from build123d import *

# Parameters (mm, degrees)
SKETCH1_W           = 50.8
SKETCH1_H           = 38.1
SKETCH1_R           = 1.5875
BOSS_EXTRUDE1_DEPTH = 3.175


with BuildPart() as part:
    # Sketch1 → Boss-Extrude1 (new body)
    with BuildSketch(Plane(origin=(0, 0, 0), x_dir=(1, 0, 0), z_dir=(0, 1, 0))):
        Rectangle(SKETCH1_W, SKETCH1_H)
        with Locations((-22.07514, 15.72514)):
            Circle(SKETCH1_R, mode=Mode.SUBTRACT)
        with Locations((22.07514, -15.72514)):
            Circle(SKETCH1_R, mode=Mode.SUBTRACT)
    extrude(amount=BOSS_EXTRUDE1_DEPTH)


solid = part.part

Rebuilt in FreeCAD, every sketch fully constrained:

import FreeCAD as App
import Part
import Sketcher

V = App.Vector
Q = App.Units.Quantity


def add_polygon(sketch, points):
    """Adds a closed chain of lines whose ends are joined by coincident constraints."""
    first, n = sketch.GeometryCount, len(points)
    for a, b in zip(points, points[1:] + points[:1]):
        sketch.addGeometry(Part.LineSegment(App.Vector(*a, 0), App.Vector(*b, 0)), False)
    for i in range(n):
        sketch.addConstraint(Sketcher.Constraint("Coincident", first + i, 2, first + (i + 1) % n, 1))

doc = App.newDocument("Part")
params = doc.addObject("Spreadsheet::Sheet", "Params")
for row, (alias, value) in enumerate([
    ("sketch1_width", "2 in"),
    ("sketch1_diameter", "0.125 in"),
    ("sketch1_height", "1.5 in"),
    ("pad1_length", "0.125 in"),
], start=1):
    params.set(f"A{row}", alias)
    params.set(f"B{row}", "=" + value)
    params.setAlias(f"B{row}", alias)

body = doc.addObject("PartDesign::Body", "Body")

sketch1 = body.newObject("Sketcher::SketchObject", "Sketch")
sketch1.AttachmentSupport = (doc.getObject("XZ_Plane"), [""])
sketch1.MapMode = "FlatFace"
add_polygon(sketch1, [(-25.4, -19.1), (-25.4, 19.1), (25.4, 19.1), (25.4, -19.1)])
sketch1.addGeometry(Part.Circle(V(22.1, 15.7, 0), V(0, 0, 1), 1.6), False)
sketch1.addGeometry(Part.Circle(V(-22.1, -15.7, 0), V(0, 0, 1), 1.6), False)
sketch1.addConstraint(Sketcher.Constraint("Vertical", 0))
sketch1.addConstraint(Sketcher.Constraint("Horizontal", 1))
sketch1.addConstraint(Sketcher.Constraint("Vertical", 2))
sketch1.addConstraint(Sketcher.Constraint("Horizontal", 3))
sketch1.addConstraint(Sketcher.Constraint("Equal", 4, 5))
sketch1.addConstraint(Sketcher.Constraint("Symmetric", 4, 3, 5, 3, -1, 1))
sketch1.addConstraint(Sketcher.Constraint("Symmetric", 0, 2, 2, 2, -1, 1))
sketch1.addConstraint(Sketcher.Constraint("DistanceX", 1, 1, 1, 2, Q("2 in")))
sketch1.addConstraint(Sketcher.Constraint("Diameter", 4, Q("0.125 in")))
sketch1.addConstraint(Sketcher.Constraint("DistanceY", 0, 1, 0, 2, Q("1.5 in")))
sketch1.addConstraint(Sketcher.Constraint("DistanceX", -1, 1, 4, 3, Q("0.8691 in")))
sketch1.addConstraint(Sketcher.Constraint("DistanceY", -1, 1, 4, 3, Q("0.6191 in")))
sketch1.setExpression("Constraints[11]", "Params.sketch1_width")
sketch1.setExpression("Constraints[12]", "Params.sketch1_diameter")
sketch1.setExpression("Constraints[13]", "Params.sketch1_height")
pad1 = body.newObject("PartDesign::Pad", "Pad")
pad1.Profile = sketch1
pad1.setExpression("Length", "Params.pad1_length")
pad1.Reversed = True

doc.recompute()
